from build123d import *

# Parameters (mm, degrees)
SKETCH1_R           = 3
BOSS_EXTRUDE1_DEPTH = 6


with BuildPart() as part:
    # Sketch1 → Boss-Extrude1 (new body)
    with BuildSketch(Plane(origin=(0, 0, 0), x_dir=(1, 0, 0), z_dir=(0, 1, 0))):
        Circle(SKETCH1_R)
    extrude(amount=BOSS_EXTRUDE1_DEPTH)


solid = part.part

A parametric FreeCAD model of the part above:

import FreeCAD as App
import Part
import Sketcher
from FreeCAD import Vector

doc = App.newDocument("Part")
body = doc.addObject("PartDesign::Body", "Body")

sketch1 = doc.addObject("Sketcher::SketchObject", "Sketch")
body.addObject(sketch1)
sketch1.AttachmentSupport = (doc.XZ_Plane, [""])
sketch1.MapMode = "FlatFace"
sketch1.addGeometry(Part.Circle(Vector(0, 0, 0), Vector(0, 0, 1), 3), False)
sketch1.addConstraint(Sketcher.Constraint("Coincident", 0, 3, -1, 1))
sketch1.addConstraint(Sketcher.Constraint("Diameter", 0, 6.0))
pad1 = doc.addObject("PartDesign::Pad", "Pad")
body.addObject(pad1)
pad1.Profile = sketch1
pad1.Length = 6
pad1.Reversed = True

doc.recompute()
